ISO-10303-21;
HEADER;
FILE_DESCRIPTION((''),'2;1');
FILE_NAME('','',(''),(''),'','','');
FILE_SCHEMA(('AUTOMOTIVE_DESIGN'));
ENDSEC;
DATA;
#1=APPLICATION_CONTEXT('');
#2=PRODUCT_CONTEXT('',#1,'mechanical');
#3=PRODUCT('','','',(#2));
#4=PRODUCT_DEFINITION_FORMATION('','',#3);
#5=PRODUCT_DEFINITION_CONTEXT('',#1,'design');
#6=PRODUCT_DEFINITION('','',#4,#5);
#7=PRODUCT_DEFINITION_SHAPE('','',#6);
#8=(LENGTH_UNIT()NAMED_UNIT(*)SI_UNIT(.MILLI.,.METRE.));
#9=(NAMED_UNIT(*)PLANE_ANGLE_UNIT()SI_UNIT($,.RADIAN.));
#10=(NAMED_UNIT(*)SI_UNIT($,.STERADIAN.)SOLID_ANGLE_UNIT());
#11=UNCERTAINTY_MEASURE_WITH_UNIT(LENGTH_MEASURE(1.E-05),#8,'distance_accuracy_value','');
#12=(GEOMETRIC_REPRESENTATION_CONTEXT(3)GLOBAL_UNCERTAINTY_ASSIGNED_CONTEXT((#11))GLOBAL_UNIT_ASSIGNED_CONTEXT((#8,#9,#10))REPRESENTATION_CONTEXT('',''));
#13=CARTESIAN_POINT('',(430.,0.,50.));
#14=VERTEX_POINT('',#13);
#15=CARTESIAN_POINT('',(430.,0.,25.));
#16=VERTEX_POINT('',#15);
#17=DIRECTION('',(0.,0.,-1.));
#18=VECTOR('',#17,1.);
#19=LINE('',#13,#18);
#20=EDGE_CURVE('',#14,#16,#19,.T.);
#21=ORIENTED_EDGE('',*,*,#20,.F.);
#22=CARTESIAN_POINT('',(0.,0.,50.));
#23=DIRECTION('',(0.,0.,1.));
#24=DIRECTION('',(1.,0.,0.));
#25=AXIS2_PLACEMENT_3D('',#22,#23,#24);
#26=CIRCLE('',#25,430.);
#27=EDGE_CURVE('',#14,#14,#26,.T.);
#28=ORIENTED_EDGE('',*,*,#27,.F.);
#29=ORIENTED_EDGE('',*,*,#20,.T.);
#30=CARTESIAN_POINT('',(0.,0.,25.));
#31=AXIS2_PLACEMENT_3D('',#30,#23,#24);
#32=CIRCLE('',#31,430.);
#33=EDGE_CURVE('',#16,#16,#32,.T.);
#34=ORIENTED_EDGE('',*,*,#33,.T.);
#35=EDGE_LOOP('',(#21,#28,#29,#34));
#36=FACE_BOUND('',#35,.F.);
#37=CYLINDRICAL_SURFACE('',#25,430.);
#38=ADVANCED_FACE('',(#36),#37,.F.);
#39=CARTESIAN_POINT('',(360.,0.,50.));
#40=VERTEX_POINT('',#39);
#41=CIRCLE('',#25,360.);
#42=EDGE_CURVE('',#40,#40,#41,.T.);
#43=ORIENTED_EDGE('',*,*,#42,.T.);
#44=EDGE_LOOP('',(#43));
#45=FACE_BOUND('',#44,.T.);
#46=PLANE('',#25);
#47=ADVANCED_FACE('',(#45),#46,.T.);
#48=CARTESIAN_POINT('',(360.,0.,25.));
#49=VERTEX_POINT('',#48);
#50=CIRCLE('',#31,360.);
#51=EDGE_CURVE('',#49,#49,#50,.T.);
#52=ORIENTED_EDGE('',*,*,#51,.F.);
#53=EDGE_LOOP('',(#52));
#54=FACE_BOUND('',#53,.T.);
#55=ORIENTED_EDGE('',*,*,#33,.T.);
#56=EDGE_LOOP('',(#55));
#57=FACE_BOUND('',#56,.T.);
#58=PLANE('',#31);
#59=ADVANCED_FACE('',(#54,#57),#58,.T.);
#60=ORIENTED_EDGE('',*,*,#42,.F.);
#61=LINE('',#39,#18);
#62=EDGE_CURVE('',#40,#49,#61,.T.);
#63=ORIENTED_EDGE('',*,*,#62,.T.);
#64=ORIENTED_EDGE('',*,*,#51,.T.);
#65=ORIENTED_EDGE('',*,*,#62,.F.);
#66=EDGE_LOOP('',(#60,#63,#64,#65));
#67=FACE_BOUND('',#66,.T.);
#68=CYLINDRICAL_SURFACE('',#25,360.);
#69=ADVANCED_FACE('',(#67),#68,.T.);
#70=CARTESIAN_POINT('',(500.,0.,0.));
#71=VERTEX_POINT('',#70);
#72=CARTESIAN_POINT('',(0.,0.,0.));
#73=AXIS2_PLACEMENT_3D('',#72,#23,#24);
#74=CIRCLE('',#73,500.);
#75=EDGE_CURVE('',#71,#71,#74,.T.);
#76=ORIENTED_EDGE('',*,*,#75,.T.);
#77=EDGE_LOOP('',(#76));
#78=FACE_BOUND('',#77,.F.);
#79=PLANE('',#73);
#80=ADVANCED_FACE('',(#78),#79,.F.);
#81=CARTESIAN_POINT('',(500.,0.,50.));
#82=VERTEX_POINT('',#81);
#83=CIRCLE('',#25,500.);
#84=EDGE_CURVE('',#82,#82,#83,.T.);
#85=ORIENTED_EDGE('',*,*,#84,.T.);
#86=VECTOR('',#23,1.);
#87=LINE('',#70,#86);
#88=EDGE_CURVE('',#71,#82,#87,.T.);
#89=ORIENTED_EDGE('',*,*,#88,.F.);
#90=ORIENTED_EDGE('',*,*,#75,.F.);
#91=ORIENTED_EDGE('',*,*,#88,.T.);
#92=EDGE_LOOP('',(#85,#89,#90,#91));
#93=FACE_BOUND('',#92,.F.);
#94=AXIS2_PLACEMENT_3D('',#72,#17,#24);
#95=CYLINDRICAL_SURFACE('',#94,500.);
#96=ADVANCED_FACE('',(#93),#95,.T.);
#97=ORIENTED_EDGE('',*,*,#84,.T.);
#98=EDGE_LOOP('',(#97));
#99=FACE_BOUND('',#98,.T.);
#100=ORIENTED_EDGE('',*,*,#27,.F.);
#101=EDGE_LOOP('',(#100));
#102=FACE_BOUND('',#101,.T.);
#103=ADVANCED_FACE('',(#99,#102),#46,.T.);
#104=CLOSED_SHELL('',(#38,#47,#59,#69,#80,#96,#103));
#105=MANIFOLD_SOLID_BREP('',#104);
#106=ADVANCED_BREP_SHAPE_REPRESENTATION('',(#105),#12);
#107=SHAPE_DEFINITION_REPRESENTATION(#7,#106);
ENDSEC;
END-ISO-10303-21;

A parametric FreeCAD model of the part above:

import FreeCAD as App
import Part
import Sketcher
from FreeCAD import Vector

doc = App.newDocument("Part")
body = doc.addObject("PartDesign::Body", "Body")

sketch1 = body.newObject("Sketcher::SketchObject", "Sketch")
sketch1.AttachmentSupport = (doc.getObject("XY_Plane"), [""])
sketch1.MapMode = "FlatFace"
sketch1.addGeometry(Part.Circle(Vector(0, 0, 0), Vector(0, 0, 1), 500), False)
sketch1.addConstraint(Sketcher.Constraint("Coincident", 0, 3, -1, 1))
sketch1.addConstraint(Sketcher.Constraint("Diameter", 0, 1000.0))
pad1 = body.newObject("PartDesign::Pad", "Pad")
pad1.Profile = sketch1
pad1.Length = 50

sketch2 = body.newObject("Sketcher::SketchObject", "Sketch001")
sketch2.AttachmentSupport = (doc.getObject("XY_Plane"), [""])
sketch2.MapMode = "FlatFace"
sketch2.AttachmentOffset = App.Placement(Vector(0, 0, 50), App.Rotation())
sketch2.addGeometry(Part.Circle(Vector(0, 0, 0), Vector(0, 0, 1), 430), False)
sketch2.addGeometry(Part.Circle(Vector(0, 0, 0), Vector(0, 0, 1), 360), False)
sketch2.addConstraint(Sketcher.Constraint("Coincident", 0, 3, -1, 1))
sketch2.addConstraint(Sketcher.Constraint("Coincident", 1, 3, -1, 1))
sketch2.addConstraint(Sketcher.Constraint("Diameter", 0, 860.0))
sketch2.addConstraint(Sketcher.Constraint("Diameter", 1, 720.0))
pocket1 = body.newObject("PartDesign::Pocket", "Pocket")
pocket1.Profile = sketch2
pocket1.Length = 25

doc.recompute()
